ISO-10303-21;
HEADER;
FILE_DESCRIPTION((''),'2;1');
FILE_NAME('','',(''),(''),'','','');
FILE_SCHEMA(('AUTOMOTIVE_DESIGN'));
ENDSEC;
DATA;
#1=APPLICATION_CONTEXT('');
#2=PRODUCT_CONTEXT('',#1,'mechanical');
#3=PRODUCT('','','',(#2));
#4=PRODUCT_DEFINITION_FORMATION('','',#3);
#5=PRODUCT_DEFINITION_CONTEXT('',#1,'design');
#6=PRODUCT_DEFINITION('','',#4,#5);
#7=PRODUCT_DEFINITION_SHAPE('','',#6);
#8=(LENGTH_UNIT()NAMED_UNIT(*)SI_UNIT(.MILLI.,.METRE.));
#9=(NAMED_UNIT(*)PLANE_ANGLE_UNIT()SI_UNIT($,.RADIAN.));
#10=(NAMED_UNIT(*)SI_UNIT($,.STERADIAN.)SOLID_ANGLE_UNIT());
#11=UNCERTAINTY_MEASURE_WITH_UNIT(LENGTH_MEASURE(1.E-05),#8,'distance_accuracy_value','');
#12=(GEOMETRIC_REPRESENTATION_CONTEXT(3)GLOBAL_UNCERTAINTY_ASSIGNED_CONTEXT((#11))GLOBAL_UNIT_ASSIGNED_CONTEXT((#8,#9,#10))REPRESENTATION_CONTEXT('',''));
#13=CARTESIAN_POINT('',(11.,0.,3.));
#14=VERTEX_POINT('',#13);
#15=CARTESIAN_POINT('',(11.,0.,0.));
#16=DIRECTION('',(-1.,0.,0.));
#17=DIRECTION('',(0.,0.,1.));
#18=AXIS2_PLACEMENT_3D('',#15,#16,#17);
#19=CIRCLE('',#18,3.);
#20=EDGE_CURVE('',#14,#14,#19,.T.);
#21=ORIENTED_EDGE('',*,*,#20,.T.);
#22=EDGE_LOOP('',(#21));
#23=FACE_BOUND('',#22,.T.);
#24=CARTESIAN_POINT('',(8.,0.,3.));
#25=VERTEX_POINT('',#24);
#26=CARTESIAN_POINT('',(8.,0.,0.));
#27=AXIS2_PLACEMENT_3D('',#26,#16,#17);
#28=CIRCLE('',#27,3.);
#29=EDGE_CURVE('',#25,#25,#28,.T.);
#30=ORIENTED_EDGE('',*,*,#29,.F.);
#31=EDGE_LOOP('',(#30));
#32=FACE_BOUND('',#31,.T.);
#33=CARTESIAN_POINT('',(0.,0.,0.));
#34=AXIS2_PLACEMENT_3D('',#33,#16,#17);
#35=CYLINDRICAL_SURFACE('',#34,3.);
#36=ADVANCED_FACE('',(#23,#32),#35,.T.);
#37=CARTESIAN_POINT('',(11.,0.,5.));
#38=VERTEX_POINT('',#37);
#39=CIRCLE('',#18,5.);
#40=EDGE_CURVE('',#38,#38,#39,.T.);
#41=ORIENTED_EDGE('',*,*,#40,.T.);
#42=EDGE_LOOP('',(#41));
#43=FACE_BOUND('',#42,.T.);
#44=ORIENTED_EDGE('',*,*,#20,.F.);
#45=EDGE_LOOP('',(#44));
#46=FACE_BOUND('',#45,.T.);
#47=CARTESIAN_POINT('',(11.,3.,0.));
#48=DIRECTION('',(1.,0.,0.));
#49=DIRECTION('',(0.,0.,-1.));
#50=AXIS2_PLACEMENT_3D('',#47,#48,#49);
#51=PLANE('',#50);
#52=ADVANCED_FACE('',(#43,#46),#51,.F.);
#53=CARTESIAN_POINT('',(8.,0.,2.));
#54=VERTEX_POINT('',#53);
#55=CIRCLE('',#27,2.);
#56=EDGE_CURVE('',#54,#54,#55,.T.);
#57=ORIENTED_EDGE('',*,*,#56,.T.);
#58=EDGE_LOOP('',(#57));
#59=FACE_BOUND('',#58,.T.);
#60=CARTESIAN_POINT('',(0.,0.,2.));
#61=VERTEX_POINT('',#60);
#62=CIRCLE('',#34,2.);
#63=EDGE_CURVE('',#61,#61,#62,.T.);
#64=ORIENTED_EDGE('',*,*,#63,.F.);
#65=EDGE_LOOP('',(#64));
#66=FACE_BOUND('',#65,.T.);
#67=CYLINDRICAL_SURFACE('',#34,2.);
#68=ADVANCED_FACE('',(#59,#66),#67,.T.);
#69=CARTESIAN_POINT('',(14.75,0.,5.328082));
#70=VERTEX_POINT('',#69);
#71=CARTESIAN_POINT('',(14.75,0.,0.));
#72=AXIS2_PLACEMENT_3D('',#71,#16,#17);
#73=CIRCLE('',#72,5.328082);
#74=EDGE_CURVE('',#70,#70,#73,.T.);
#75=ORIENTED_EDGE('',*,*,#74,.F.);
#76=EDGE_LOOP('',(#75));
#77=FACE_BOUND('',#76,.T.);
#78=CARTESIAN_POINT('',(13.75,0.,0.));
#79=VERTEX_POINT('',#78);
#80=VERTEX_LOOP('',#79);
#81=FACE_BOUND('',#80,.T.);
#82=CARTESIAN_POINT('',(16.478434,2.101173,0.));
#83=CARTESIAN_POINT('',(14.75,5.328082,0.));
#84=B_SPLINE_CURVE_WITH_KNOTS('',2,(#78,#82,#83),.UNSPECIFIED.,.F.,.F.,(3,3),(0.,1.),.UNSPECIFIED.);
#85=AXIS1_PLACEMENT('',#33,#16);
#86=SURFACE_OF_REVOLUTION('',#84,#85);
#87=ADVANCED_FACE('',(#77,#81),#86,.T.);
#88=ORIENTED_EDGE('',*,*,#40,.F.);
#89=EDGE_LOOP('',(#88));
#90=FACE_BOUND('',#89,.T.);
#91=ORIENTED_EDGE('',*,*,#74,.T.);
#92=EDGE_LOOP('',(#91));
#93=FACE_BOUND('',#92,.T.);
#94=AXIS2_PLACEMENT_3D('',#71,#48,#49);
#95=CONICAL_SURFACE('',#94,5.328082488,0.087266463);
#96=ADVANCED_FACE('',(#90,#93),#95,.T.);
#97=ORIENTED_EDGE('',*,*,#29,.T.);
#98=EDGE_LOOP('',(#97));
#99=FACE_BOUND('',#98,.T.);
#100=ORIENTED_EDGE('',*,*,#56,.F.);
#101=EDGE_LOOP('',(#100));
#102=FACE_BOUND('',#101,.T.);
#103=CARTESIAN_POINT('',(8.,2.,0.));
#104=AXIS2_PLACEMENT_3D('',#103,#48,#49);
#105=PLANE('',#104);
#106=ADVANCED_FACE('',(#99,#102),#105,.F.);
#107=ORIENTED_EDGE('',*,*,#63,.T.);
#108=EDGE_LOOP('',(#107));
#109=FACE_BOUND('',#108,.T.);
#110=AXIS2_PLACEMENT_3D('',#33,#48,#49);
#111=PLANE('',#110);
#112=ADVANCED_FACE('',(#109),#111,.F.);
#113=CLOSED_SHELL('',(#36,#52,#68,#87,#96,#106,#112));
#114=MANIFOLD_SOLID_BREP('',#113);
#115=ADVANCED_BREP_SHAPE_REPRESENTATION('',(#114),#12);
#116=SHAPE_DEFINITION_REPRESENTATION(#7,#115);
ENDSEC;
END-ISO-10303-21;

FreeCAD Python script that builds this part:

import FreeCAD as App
import Part
import Sketcher

V = App.Vector

doc = App.newDocument("Part")
body = doc.addObject("PartDesign::Body", "Body")

# Sketch on XY plane
sketch1 = body.newObject("Sketcher::SketchObject", "Sketch")
sketch1.AttachmentSupport = (doc.getObject("XY_Plane"), [""])
sketch1.MapMode = "FlatFace"
sketch1.addGeometry([
    Part.LineSegment(V(0, 2, 0), V(0, 0, 0)),  # 0
    Part.LineSegment(V(0, 0, 0), V(13.75, 0, 0)),  # 1
    Part.BSplineCurve([V(14.75, 5.328082, 0), V(16.478434, 2.101173, 0), V(13.75, 0, 0)], [3, 3], [0, 1], False, 2, [1, 1, 1], False),  # 2
    Part.LineSegment(V(14.75, 5.328082, 0), V(11, 5, 0)),  # 3
    Part.LineSegment(V(11, 5, 0), V(11, 3, 0)),  # 4
    Part.LineSegment(V(11, 3, 0), V(8, 3, 0)),  # 5
    Part.LineSegment(V(8, 3, 0), V(8, 2, 0)),  # 6
    Part.LineSegment(V(8, 2, 0), V(0, 2, 0)),  # 7
], False)
sketch1.addConstraint([
    Sketcher.Constraint("Block", 2),
    Sketcher.Constraint("Coincident", 0, 2, 1, 1),
    Sketcher.Constraint("Coincident", 1, 2, 2, 2),
    Sketcher.Constraint("Coincident", 2, 1, 3, 1),
    Sketcher.Constraint("Coincident", 3, 2, 4, 1),
    Sketcher.Constraint("Coincident", 4, 2, 5, 1),
    Sketcher.Constraint("Coincident", 5, 2, 6, 1),
    Sketcher.Constraint("Coincident", 6, 2, 7, 1),
    Sketcher.Constraint("Coincident", 7, 2, 0, 1),
    Sketcher.Constraint("Vertical", 0),
    Sketcher.Constraint("Horizontal", 1),
    Sketcher.Constraint("Vertical", 4),
    Sketcher.Constraint("Horizontal", 5),
    Sketcher.Constraint("Vertical", 6),
    Sketcher.Constraint("Horizontal", 7),
    Sketcher.Constraint("PointOnObject", 7, 2, -2),
    Sketcher.Constraint("Equal", 0, 4),
    Sketcher.Constraint("DistanceX", 5, 2, 5, 1, 3.0),
    Sketcher.Constraint("DistanceX", 7, 2, 7, 1, 8.0),
    Sketcher.Constraint("DistanceY", 0, 2, 0, 1, 2.0),
    Sketcher.Constraint("DistanceY", 6, 2, 6, 1, 1.0),
])
revolution = body.newObject("PartDesign::Revolution", "Revolution")
revolution.Profile = sketch1
revolution.ReferenceAxis = (sketch1, ["H_Axis"])
revolution.Angle = 360

doc.recompute()
